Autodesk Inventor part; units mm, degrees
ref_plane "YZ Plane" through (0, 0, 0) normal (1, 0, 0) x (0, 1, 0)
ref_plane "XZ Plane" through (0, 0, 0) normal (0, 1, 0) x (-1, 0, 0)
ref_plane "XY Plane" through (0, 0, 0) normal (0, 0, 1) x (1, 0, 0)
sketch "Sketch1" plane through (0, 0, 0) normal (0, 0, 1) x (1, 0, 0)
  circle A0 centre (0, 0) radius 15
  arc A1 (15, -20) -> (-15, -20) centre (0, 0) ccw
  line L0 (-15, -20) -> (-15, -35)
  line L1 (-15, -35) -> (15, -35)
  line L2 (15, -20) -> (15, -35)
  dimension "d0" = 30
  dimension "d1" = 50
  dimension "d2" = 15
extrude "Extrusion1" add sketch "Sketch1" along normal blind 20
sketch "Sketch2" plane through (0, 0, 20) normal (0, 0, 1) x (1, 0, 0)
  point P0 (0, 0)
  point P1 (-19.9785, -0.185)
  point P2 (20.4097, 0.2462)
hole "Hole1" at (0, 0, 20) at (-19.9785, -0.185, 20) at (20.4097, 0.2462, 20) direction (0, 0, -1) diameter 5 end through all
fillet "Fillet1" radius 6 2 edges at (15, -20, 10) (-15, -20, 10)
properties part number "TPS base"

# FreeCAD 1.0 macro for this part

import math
import FreeCAD as App
import Part
import Sketcher
Q = App.Units.Quantity


def edges_at(feature, points):
    """Names of the edges that pass closest to the given points."""
    edges = feature.Shape.Edges
    near = lambda p: min(range(len(edges)), key=lambda i: edges[i].distToShape(Part.Vertex(*p))[0])
    return sorted({f"Edge{near(p) + 1}" for p in points})

doc = App.newDocument("Part")
body = doc.addObject("PartDesign::Body", "Body")

sketch1 = doc.addObject("Sketcher::SketchObject", "Sketch")
body.addObject(sketch1)
sketch1.AttachmentSupport = (doc.XY_Plane, [""])
sketch1.MapMode = "FlatFace"
sketch1.addGeometry([
    Part.LineSegment(App.Vector(15, -35, 0), App.Vector(15, -20, 0)),
    Part.ArcOfCircle(Part.Circle(App.Vector(0, 0, 0), App.Vector(0, 0, 1), 25), math.radians(-53), math.radians(233)),
    Part.LineSegment(App.Vector(-15, -20, 0), App.Vector(-15, -35, 0)),
    Part.LineSegment(App.Vector(-15, -35, 0), App.Vector(15, -35, 0)),
    Part.Circle(App.Vector(0, 0, 0), App.Vector(0, 0, 1), 15),
], False)
sketch1.addConstraint([
    Sketcher.Constraint("Coincident", 0, 2, 1, 1),
    Sketcher.Constraint("Coincident", 1, 2, 2, 1),
    Sketcher.Constraint("Coincident", 2, 2, 3, 1),
    Sketcher.Constraint("Coincident", 3, 2, 0, 1),
    Sketcher.Constraint("Vertical", 0),
    Sketcher.Constraint("Vertical", 2),
    Sketcher.Constraint("Horizontal", 3),
    Sketcher.Constraint("Coincident", 1, 3, -1, 1),
    Sketcher.Constraint("Coincident", 4, 3, -1, 1),
    Sketcher.Constraint("Horizontal", 0, 2, 1, 2),
    Sketcher.Constraint("Diameter", 4, Q("30 mm")),
    Sketcher.Constraint("Radius", 1, Q("25 mm")),
    Sketcher.Constraint("DistanceX", 3, 1, 3, 2, Q("30 mm")),
    Sketcher.Constraint("DistanceY", 0, 1, 0, 2, Q("15 mm")),
])
pad1 = doc.addObject("PartDesign::Pad", "Pad")
body.addObject(pad1)
pad1.Profile = sketch1
pad1.Length = 20

sketch2 = doc.addObject("Sketcher::SketchObject", "Sketch001")
body.addObject(sketch2)
sketch2.AttachmentSupport = (doc.XY_Plane, [""])
sketch2.MapMode = "FlatFace"
sketch2.AttachmentOffset = App.Placement(App.Vector(0, 0, 20), App.Rotation())
sketch2.addGeometry([
    Part.Circle(App.Vector(0, 0, 0), App.Vector(0, 0, 1), 2.5),
    Part.Circle(App.Vector(-20, -0.2, 0), App.Vector(0, 0, 1), 2.5),
    Part.Circle(App.Vector(20.4, 0.2, 0), App.Vector(0, 0, 1), 2.5),
], False)
sketch2.addConstraint([
    Sketcher.Constraint("Coincident", 0, 3, -1, 1),
    Sketcher.Constraint("Equal", 0, 1),
    Sketcher.Constraint("Equal", 1, 2),
    Sketcher.Constraint("Diameter", 0, Q("5 mm")),
    Sketcher.Constraint("DistanceY", 1, 3, -1, 1, Q("0.185 mm")),
    Sketcher.Constraint("DistanceX", 1, 3, -1, 1, Q("19.9785 mm")),
    Sketcher.Constraint("DistanceX", -1, 1, 2, 3, Q("20.4097 mm")),
    Sketcher.Constraint("DistanceY", -1, 1, 2, 3, Q("0.2462 mm")),
])
doc.recompute()
hole = doc.addObject("PartDesign::Hole", "Hole")
body.addObject(hole)
hole.Profile = sketch2
hole.ThreadType = "None"
hole.Diameter = 5
hole.DepthType = "ThroughAll"
doc.recompute()

fillet = doc.addObject("PartDesign::Fillet", "Fillet")
body.addObject(fillet)
fillet.Base = (hole, edges_at(hole, [(15, -20, 10), (-15, -20, 10)]))
fillet.Radius = 6

doc.recompute()
